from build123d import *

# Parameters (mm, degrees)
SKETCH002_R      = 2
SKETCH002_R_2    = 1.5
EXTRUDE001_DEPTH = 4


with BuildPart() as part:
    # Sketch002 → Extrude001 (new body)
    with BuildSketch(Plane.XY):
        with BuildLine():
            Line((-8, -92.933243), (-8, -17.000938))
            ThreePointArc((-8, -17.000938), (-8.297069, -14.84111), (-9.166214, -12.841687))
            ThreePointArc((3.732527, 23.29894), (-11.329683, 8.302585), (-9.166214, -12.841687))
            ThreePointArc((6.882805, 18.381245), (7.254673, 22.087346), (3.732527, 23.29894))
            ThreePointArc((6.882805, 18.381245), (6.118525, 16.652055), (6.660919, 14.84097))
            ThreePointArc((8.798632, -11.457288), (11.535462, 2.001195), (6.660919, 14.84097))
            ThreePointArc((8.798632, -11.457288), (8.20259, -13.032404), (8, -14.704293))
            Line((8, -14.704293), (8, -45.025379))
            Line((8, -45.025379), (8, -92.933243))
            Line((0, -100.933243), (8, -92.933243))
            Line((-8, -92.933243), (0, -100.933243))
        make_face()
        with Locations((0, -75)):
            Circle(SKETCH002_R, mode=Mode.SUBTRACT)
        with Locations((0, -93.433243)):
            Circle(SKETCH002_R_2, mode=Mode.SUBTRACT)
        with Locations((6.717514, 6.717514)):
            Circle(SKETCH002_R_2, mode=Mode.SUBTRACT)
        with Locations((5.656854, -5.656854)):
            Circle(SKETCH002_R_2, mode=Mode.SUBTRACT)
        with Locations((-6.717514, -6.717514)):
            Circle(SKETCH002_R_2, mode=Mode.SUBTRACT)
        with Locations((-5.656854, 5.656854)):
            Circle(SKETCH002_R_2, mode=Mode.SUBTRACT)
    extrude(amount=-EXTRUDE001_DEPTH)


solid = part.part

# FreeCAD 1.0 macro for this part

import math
import FreeCAD as App
import Part
import Sketcher
Q = App.Units.Quantity

doc = App.newDocument("Part")
params = doc.addObject("Spreadsheet::Sheet", "Params")
for row, (alias, value) in enumerate([
    ("sketch1_diameter", "3 mm"),
    ("sketch1_diameter2", "4 mm"),
    ("sketch1_radius", "3 mm"),
    ("sketch1_radius2", "24.699998 mm"),
    ("sketch1_radius3", "2.730001 mm"),
    ("pad1_length", "4 mm"),
], start=1):
    params.set(f"A{row}", alias)
    params.set(f"B{row}", "=" + value)
    params.setAlias(f"B{row}", alias)

body = doc.addObject("PartDesign::Body", "Body")

# Sketch on XY plane
sketch1 = body.newObject("Sketcher::SketchObject", "Sketch")
sketch1.AttachmentSupport = (doc.getObject("XY_Plane"), [""])
sketch1.MapMode = "FlatFace"
sketch1.addGeometry([
    Part.LineSegment(App.Vector(-8, -17.000938, 0), App.Vector(-8, -92.933243, 0)),  # 0
    Part.LineSegment(App.Vector(-8, -92.933243, 0), App.Vector(0, -100.933243, 0)),  # 1
    Part.LineSegment(App.Vector(0, -100.933243, 0), App.Vector(8, -92.933243, 0)),  # 2
    Part.LineSegment(App.Vector(8, -92.933243, 0), App.Vector(8, -14.704293, 0)),  # 3
    Part.ArcOfCircle(Part.Circle(App.Vector(15.000019, -14.704297, 0), App.Vector(0, 0, 1), 7.000019), math.radians(152.363718), math.radians(179.99997)),  # 4
    Part.ArcOfCircle(Part.Circle(App.Vector(-13.083334, 0.000001, 0), App.Vector(0, 0, 1), 24.699998), math.radians(-27.63633), math.radians(36.930727)),  # 5
    Part.ArcOfCircle(Part.Circle(App.Vector(8.84318, 16.481288, 0), App.Vector(0, 0, 1), 2.730001), math.radians(135.896666), math.radians(216.930714)),  # 6
    Part.ArcOfCircle(Part.Circle(App.Vector(4.728548, 20.469109, 0), App.Vector(0, 0, 1), 3), math.radians(-44.103336), math.radians(109.390628)),  # 7
    Part.ArcOfCircle(Part.Circle(App.Vector(11.9331, 0, 0), App.Vector(0, 0, 1), 24.7), math.radians(109.390638), math.radians(211.325972)),  # 8
    Part.ArcOfCircle(Part.Circle(App.Vector(-15.999995, -17.000937, 0), App.Vector(0, 0, 1), 7.999995), math.radians(-0.00001), math.radians(31.325981)),  # 9
    Part.Circle(App.Vector(0, -93.433243, 0), App.Vector(0, 0, 1), 1.5),  # 10
    Part.Circle(App.Vector(0, -75, 0), App.Vector(0, 0, 1), 2),  # 11
    Part.Circle(App.Vector(5.656854, -5.656854, 0), App.Vector(0, 0, 1), 1.5),  # 12
    Part.Circle(App.Vector(6.717514, 6.717514, 0), App.Vector(0, 0, 1), 1.5),  # 13
    Part.Circle(App.Vector(-6.717514, -6.717514, 0), App.Vector(0, 0, 1), 1.5),  # 14
    Part.Circle(App.Vector(-5.656854, 5.656854, 0), App.Vector(0, 0, 1), 1.5),  # 15
], False)
sketch1.addConstraint([
    Sketcher.Constraint("Coincident", 0, 2, 1, 1),
    Sketcher.Constraint("Coincident", 1, 2, 2, 1),
    Sketcher.Constraint("Coincident", 2, 2, 3, 1),
    Sketcher.Constraint("Tangent", 3, 2, 4, 2),
    Sketcher.Constraint("Tangent", 4, 1, 5, 1),
    Sketcher.Constraint("Tangent", 5, 2, 6, 2),
    Sketcher.Constraint("Tangent", 6, 1, 7, 1),
    Sketcher.Constraint("Tangent", 7, 2, 8, 1),
    Sketcher.Constraint("Tangent", 8, 2, 9, 2),
    Sketcher.Constraint("Tangent", 9, 1, 0, 1),
    Sketcher.Constraint("Vertical", 0),
    Sketcher.Constraint("Vertical", 3),
    Sketcher.Constraint("Equal", 5, 8),
    Sketcher.Constraint("Equal", 10, 12),
    Sketcher.Constraint("Equal", 12, 13),
    Sketcher.Constraint("Equal", 13, 14),
    Sketcher.Constraint("Equal", 14, 15),
    Sketcher.Constraint("Symmetric", 13, 3, 14, 3, -1, 1),
    Sketcher.Constraint("Symmetric", 12, 3, 15, 3, -1, 1),
    Sketcher.Constraint("Symmetric", 0, 2, 2, 2, -2),
    Sketcher.Constraint("PointOnObject", 5, 3, -1),
    Sketcher.Constraint("PointOnObject", 8, 3, -1),
    Sketcher.Constraint("PointOnObject", 10, 3, -2),
    Sketcher.Constraint("PointOnObject", 11, 3, -2),
    Sketcher.Constraint("PointOnObject", 1, 2, -2),
    Sketcher.Constraint("Perpendicular", 1, 2),
    Sketcher.Constraint("Diameter", 10, Q("3 mm")),
    Sketcher.Constraint("Diameter", 11, Q("4 mm")),
    Sketcher.Constraint("Radius", 7, Q("3 mm")),
    Sketcher.Constraint("Radius", 5, Q("24.699998 mm")),
    Sketcher.Constraint("Radius", 6, Q("2.730001 mm")),
    Sketcher.Constraint("DistanceY", 11, 3, -1, 1, Q("75 mm")),
    Sketcher.Constraint("DistanceX", 0, 2, -1, 1, Q("8 mm")),
    Sketcher.Constraint("DistanceY", 10, 3, 0, 2, Q("0.5 mm")),
    Sketcher.Constraint("Radius", 4, Q("7.000019 mm")),
    Sketcher.Constraint("Radius", 9, Q("7.999995 mm")),
    Sketcher.Constraint("DistanceY", 3, 1, 3, 2, Q("78.22895 mm")),
    Sketcher.Constraint("DistanceX", -1, 1, 8, 3, Q("11.9331 mm")),
    Sketcher.Constraint("DistanceX", 15, 3, 7, 3, Q("10.385402 mm")),
    Sketcher.Constraint("DistanceX", 8, 2, 14, 3, Q("2.4487 mm")),
    Sketcher.Constraint("DistanceY", 0, 2, 0, 1, Q("75.932305 mm")),
    Sketcher.Constraint("DistanceX", -1, 1, 6, 3, Q("8.84318 mm")),
    Sketcher.Constraint("DistanceY", 14, 3, 12, 3, Q("1.06066 mm")),
    Sketcher.Constraint("DistanceY", 14, 3, 13, 3, Q("13.435028 mm")),
])
sketch1.setExpression("Constraints[26]", "Params.sketch1_diameter")
sketch1.setExpression("Constraints[27]", "Params.sketch1_diameter2")
sketch1.setExpression("Constraints[28]", "Params.sketch1_radius")
sketch1.setExpression("Constraints[29]", "Params.sketch1_radius2")
sketch1.setExpression("Constraints[30]", "Params.sketch1_radius3")
pad1 = body.newObject("PartDesign::Pad", "Pad")
pad1.Profile = sketch1
pad1.setExpression("Length", "Params.pad1_length")
pad1.Reversed = True

doc.recompute()
